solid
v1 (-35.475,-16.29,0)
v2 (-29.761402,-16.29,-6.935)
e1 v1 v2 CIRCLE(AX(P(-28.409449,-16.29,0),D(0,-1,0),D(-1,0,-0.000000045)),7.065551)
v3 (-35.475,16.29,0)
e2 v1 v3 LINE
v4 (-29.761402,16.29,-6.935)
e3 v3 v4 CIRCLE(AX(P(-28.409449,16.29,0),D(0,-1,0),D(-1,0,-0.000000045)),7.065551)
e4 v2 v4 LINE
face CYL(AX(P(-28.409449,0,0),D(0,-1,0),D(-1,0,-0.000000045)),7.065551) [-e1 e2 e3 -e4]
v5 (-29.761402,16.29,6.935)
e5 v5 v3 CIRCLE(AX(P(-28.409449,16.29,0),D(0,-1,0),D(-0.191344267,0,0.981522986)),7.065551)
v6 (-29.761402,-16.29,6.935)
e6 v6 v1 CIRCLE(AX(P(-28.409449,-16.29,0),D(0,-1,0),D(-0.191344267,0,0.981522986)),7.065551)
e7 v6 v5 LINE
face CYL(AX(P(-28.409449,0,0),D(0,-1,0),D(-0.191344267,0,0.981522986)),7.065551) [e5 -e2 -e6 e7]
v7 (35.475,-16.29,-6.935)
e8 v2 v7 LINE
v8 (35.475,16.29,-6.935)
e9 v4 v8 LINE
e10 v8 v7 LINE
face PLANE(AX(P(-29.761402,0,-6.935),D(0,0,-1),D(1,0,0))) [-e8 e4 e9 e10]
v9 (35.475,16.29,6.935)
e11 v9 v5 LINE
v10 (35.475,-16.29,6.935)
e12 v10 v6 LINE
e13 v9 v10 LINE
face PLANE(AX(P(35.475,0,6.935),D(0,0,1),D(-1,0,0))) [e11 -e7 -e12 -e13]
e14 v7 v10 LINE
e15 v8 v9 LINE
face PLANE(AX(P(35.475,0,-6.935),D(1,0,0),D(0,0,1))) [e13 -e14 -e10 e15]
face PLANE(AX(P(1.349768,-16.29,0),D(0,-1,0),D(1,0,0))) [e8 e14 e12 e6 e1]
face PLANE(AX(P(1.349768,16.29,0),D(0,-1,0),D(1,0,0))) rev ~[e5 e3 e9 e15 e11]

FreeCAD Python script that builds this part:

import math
import FreeCAD as App
import Part
import Sketcher

V = App.Vector
Q = App.Units.Quantity

doc = App.newDocument("Part")
body = doc.addObject("PartDesign::Body", "Body")

# Sketch on XZ plane
sketch1 = doc.addObject("Sketcher::SketchObject", "Sketch")
body.addObject(sketch1)
sketch1.AttachmentSupport = (doc.XZ_Plane, [""])
sketch1.MapMode = "FlatFace"
sketch1.addGeometry([
    Part.LineSegment(V(-30, -7, 0), V(35, -7, 0)),  # 0
    Part.LineSegment(V(35, -7, 0), V(35, 7, 0)),  # 1
    Part.LineSegment(V(35, 7, 0), V(-30, 7, 0)),  # 2
    Part.ArcOfCircle(Part.Circle(V(-28, 0, 0), V(0, 0, 1), 7), math.radians(101), math.radians(180)),  # 3
    Part.ArcOfCircle(Part.Circle(V(-28, 0, 0), V(0, 0, 1), 7), math.radians(-180), math.radians(-101)),  # 4
], False)
sketch1.addConstraint([
    Sketcher.Constraint("Coincident", 0, 2, 1, 1),
    Sketcher.Constraint("Coincident", 1, 2, 2, 1),
    Sketcher.Constraint("Coincident", 2, 2, 3, 1),
    Sketcher.Constraint("Tangent", 3, 2, 4, 1),
    Sketcher.Constraint("Coincident", 4, 2, 0, 1),
    Sketcher.Constraint("Horizontal", 0),
    Sketcher.Constraint("Vertical", 1),
    Sketcher.Constraint("Horizontal", 2),
    Sketcher.Constraint("Equal", 3, 4),
    Sketcher.Constraint("Symmetric", 2, 2, 4, 2, -1),
    Sketcher.Constraint("PointOnObject", 3, 2, -1),
    Sketcher.Constraint("DistanceY", 1, 1, 1, 2, Q("13.87 mm")),
    Sketcher.Constraint("Radius", 3, Q("7.065551 mm")),
    Sketcher.Constraint("DistanceX", 3, 2, 0, 2, Q("70.95 mm")),
    Sketcher.Constraint("DistanceX", -1, 1, 0, 2, Q("35.475 mm")),
])
pad1 = doc.addObject("PartDesign::Pad", "Pad")
body.addObject(pad1)
pad1.Profile = sketch1
pad1.Length = 32.58
pad1.Midplane = True

doc.recompute()
